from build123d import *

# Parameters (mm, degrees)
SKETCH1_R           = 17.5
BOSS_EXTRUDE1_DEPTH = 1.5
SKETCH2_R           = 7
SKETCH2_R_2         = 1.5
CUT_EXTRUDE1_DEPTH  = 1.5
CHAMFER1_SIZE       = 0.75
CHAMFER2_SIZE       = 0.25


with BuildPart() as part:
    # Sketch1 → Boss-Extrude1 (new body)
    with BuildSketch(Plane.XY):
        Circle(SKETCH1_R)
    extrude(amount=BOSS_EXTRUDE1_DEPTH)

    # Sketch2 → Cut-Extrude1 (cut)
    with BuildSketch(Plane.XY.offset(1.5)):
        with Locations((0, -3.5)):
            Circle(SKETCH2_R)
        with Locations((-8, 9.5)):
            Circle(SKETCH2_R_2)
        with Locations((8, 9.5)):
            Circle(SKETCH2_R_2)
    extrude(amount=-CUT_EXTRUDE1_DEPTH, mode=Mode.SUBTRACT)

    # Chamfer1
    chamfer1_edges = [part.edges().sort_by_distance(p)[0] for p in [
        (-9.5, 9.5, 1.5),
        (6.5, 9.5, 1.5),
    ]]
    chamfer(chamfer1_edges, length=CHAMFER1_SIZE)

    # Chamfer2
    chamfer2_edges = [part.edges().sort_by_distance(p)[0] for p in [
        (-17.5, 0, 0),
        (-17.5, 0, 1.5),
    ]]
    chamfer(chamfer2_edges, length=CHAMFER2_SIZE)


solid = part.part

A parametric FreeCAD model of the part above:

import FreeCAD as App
import Part
import Sketcher
from FreeCAD import Vector


def edges_at(feature, points):
    """Names of the edges that pass closest to the given points."""
    edges = feature.Shape.Edges
    near = lambda p: min(range(len(edges)), key=lambda i: edges[i].distToShape(Part.Vertex(*p))[0])
    return sorted({f"Edge{near(p) + 1}" for p in points})

doc = App.newDocument("Part")
body = doc.addObject("PartDesign::Body", "Body")

# Sketch on XY plane
sketch1 = doc.addObject("Sketcher::SketchObject", "Sketch")
body.addObject(sketch1)
sketch1.AttachmentSupport = (doc.XY_Plane, [""])
sketch1.MapMode = "FlatFace"
sketch1.addGeometry(Part.Circle(Vector(0, 0, 0), Vector(0, 0, 1), 18), False)
sketch1.addConstraint(Sketcher.Constraint("Coincident", 0, 3, -1, 1))
sketch1.addConstraint(Sketcher.Constraint("Diameter", 0, 35.0))
pad1 = doc.addObject("PartDesign::Pad", "Pad")
body.addObject(pad1)
pad1.Profile = sketch1
pad1.Length = 1.5

# Sketch on XY plane
sketch2 = doc.addObject("Sketcher::SketchObject", "Sketch001")
body.addObject(sketch2)
sketch2.AttachmentSupport = (doc.XY_Plane, [""])
sketch2.MapMode = "FlatFace"
sketch2.AttachmentOffset = App.Placement(Vector(0, 0, 1.5), App.Rotation())
sketch2.addGeometry(Part.Circle(Vector(0, -3.5, 0), Vector(0, 0, 1), 7), False)
sketch2.addGeometry(Part.Circle(Vector(-8, 9.5, 0), Vector(0, 0, 1), 1.5), False)
sketch2.addGeometry(Part.Circle(Vector(8, 9.5, 0), Vector(0, 0, 1), 1.5), False)
sketch2.addConstraint(Sketcher.Constraint("Equal", 1, 2))
sketch2.addConstraint(Sketcher.Constraint("Symmetric", 1, 3, 2, 3, -2))
sketch2.addConstraint(Sketcher.Constraint("PointOnObject", 0, 3, -2))
sketch2.addConstraint(Sketcher.Constraint("Diameter", 0, 14.0))
sketch2.addConstraint(Sketcher.Constraint("Diameter", 1, 3.0))
sketch2.addConstraint(Sketcher.Constraint("DistanceX", 1, 3, -1, 1, 8.0))
sketch2.addConstraint(Sketcher.Constraint("DistanceY", 0, 3, 1, 3, 13.0))
sketch2.addConstraint(Sketcher.Constraint("DistanceY", 0, 3, -1, 1, 3.5))
pocket1 = doc.addObject("PartDesign::Pocket", "Pocket")
body.addObject(pocket1)
pocket1.Profile = sketch2
pocket1.Length = 1.5
doc.recompute()

chamfer = doc.addObject("PartDesign::Chamfer", "Chamfer")
body.addObject(chamfer)
chamfer.Base = (pocket1, edges_at(pocket1, [(-9.5, 9.5, 1.5), (6.5, 9.5, 1.5)]))
chamfer.Size = 0.75
doc.recompute()

chamfer2 = doc.addObject("PartDesign::Chamfer", "Chamfer001")
body.addObject(chamfer2)
chamfer2.Base = (chamfer, edges_at(chamfer, [(-17.5, 0, 0), (-17.5, 0, 1.5)]))
chamfer2.Size = 0.25

doc.recompute()
